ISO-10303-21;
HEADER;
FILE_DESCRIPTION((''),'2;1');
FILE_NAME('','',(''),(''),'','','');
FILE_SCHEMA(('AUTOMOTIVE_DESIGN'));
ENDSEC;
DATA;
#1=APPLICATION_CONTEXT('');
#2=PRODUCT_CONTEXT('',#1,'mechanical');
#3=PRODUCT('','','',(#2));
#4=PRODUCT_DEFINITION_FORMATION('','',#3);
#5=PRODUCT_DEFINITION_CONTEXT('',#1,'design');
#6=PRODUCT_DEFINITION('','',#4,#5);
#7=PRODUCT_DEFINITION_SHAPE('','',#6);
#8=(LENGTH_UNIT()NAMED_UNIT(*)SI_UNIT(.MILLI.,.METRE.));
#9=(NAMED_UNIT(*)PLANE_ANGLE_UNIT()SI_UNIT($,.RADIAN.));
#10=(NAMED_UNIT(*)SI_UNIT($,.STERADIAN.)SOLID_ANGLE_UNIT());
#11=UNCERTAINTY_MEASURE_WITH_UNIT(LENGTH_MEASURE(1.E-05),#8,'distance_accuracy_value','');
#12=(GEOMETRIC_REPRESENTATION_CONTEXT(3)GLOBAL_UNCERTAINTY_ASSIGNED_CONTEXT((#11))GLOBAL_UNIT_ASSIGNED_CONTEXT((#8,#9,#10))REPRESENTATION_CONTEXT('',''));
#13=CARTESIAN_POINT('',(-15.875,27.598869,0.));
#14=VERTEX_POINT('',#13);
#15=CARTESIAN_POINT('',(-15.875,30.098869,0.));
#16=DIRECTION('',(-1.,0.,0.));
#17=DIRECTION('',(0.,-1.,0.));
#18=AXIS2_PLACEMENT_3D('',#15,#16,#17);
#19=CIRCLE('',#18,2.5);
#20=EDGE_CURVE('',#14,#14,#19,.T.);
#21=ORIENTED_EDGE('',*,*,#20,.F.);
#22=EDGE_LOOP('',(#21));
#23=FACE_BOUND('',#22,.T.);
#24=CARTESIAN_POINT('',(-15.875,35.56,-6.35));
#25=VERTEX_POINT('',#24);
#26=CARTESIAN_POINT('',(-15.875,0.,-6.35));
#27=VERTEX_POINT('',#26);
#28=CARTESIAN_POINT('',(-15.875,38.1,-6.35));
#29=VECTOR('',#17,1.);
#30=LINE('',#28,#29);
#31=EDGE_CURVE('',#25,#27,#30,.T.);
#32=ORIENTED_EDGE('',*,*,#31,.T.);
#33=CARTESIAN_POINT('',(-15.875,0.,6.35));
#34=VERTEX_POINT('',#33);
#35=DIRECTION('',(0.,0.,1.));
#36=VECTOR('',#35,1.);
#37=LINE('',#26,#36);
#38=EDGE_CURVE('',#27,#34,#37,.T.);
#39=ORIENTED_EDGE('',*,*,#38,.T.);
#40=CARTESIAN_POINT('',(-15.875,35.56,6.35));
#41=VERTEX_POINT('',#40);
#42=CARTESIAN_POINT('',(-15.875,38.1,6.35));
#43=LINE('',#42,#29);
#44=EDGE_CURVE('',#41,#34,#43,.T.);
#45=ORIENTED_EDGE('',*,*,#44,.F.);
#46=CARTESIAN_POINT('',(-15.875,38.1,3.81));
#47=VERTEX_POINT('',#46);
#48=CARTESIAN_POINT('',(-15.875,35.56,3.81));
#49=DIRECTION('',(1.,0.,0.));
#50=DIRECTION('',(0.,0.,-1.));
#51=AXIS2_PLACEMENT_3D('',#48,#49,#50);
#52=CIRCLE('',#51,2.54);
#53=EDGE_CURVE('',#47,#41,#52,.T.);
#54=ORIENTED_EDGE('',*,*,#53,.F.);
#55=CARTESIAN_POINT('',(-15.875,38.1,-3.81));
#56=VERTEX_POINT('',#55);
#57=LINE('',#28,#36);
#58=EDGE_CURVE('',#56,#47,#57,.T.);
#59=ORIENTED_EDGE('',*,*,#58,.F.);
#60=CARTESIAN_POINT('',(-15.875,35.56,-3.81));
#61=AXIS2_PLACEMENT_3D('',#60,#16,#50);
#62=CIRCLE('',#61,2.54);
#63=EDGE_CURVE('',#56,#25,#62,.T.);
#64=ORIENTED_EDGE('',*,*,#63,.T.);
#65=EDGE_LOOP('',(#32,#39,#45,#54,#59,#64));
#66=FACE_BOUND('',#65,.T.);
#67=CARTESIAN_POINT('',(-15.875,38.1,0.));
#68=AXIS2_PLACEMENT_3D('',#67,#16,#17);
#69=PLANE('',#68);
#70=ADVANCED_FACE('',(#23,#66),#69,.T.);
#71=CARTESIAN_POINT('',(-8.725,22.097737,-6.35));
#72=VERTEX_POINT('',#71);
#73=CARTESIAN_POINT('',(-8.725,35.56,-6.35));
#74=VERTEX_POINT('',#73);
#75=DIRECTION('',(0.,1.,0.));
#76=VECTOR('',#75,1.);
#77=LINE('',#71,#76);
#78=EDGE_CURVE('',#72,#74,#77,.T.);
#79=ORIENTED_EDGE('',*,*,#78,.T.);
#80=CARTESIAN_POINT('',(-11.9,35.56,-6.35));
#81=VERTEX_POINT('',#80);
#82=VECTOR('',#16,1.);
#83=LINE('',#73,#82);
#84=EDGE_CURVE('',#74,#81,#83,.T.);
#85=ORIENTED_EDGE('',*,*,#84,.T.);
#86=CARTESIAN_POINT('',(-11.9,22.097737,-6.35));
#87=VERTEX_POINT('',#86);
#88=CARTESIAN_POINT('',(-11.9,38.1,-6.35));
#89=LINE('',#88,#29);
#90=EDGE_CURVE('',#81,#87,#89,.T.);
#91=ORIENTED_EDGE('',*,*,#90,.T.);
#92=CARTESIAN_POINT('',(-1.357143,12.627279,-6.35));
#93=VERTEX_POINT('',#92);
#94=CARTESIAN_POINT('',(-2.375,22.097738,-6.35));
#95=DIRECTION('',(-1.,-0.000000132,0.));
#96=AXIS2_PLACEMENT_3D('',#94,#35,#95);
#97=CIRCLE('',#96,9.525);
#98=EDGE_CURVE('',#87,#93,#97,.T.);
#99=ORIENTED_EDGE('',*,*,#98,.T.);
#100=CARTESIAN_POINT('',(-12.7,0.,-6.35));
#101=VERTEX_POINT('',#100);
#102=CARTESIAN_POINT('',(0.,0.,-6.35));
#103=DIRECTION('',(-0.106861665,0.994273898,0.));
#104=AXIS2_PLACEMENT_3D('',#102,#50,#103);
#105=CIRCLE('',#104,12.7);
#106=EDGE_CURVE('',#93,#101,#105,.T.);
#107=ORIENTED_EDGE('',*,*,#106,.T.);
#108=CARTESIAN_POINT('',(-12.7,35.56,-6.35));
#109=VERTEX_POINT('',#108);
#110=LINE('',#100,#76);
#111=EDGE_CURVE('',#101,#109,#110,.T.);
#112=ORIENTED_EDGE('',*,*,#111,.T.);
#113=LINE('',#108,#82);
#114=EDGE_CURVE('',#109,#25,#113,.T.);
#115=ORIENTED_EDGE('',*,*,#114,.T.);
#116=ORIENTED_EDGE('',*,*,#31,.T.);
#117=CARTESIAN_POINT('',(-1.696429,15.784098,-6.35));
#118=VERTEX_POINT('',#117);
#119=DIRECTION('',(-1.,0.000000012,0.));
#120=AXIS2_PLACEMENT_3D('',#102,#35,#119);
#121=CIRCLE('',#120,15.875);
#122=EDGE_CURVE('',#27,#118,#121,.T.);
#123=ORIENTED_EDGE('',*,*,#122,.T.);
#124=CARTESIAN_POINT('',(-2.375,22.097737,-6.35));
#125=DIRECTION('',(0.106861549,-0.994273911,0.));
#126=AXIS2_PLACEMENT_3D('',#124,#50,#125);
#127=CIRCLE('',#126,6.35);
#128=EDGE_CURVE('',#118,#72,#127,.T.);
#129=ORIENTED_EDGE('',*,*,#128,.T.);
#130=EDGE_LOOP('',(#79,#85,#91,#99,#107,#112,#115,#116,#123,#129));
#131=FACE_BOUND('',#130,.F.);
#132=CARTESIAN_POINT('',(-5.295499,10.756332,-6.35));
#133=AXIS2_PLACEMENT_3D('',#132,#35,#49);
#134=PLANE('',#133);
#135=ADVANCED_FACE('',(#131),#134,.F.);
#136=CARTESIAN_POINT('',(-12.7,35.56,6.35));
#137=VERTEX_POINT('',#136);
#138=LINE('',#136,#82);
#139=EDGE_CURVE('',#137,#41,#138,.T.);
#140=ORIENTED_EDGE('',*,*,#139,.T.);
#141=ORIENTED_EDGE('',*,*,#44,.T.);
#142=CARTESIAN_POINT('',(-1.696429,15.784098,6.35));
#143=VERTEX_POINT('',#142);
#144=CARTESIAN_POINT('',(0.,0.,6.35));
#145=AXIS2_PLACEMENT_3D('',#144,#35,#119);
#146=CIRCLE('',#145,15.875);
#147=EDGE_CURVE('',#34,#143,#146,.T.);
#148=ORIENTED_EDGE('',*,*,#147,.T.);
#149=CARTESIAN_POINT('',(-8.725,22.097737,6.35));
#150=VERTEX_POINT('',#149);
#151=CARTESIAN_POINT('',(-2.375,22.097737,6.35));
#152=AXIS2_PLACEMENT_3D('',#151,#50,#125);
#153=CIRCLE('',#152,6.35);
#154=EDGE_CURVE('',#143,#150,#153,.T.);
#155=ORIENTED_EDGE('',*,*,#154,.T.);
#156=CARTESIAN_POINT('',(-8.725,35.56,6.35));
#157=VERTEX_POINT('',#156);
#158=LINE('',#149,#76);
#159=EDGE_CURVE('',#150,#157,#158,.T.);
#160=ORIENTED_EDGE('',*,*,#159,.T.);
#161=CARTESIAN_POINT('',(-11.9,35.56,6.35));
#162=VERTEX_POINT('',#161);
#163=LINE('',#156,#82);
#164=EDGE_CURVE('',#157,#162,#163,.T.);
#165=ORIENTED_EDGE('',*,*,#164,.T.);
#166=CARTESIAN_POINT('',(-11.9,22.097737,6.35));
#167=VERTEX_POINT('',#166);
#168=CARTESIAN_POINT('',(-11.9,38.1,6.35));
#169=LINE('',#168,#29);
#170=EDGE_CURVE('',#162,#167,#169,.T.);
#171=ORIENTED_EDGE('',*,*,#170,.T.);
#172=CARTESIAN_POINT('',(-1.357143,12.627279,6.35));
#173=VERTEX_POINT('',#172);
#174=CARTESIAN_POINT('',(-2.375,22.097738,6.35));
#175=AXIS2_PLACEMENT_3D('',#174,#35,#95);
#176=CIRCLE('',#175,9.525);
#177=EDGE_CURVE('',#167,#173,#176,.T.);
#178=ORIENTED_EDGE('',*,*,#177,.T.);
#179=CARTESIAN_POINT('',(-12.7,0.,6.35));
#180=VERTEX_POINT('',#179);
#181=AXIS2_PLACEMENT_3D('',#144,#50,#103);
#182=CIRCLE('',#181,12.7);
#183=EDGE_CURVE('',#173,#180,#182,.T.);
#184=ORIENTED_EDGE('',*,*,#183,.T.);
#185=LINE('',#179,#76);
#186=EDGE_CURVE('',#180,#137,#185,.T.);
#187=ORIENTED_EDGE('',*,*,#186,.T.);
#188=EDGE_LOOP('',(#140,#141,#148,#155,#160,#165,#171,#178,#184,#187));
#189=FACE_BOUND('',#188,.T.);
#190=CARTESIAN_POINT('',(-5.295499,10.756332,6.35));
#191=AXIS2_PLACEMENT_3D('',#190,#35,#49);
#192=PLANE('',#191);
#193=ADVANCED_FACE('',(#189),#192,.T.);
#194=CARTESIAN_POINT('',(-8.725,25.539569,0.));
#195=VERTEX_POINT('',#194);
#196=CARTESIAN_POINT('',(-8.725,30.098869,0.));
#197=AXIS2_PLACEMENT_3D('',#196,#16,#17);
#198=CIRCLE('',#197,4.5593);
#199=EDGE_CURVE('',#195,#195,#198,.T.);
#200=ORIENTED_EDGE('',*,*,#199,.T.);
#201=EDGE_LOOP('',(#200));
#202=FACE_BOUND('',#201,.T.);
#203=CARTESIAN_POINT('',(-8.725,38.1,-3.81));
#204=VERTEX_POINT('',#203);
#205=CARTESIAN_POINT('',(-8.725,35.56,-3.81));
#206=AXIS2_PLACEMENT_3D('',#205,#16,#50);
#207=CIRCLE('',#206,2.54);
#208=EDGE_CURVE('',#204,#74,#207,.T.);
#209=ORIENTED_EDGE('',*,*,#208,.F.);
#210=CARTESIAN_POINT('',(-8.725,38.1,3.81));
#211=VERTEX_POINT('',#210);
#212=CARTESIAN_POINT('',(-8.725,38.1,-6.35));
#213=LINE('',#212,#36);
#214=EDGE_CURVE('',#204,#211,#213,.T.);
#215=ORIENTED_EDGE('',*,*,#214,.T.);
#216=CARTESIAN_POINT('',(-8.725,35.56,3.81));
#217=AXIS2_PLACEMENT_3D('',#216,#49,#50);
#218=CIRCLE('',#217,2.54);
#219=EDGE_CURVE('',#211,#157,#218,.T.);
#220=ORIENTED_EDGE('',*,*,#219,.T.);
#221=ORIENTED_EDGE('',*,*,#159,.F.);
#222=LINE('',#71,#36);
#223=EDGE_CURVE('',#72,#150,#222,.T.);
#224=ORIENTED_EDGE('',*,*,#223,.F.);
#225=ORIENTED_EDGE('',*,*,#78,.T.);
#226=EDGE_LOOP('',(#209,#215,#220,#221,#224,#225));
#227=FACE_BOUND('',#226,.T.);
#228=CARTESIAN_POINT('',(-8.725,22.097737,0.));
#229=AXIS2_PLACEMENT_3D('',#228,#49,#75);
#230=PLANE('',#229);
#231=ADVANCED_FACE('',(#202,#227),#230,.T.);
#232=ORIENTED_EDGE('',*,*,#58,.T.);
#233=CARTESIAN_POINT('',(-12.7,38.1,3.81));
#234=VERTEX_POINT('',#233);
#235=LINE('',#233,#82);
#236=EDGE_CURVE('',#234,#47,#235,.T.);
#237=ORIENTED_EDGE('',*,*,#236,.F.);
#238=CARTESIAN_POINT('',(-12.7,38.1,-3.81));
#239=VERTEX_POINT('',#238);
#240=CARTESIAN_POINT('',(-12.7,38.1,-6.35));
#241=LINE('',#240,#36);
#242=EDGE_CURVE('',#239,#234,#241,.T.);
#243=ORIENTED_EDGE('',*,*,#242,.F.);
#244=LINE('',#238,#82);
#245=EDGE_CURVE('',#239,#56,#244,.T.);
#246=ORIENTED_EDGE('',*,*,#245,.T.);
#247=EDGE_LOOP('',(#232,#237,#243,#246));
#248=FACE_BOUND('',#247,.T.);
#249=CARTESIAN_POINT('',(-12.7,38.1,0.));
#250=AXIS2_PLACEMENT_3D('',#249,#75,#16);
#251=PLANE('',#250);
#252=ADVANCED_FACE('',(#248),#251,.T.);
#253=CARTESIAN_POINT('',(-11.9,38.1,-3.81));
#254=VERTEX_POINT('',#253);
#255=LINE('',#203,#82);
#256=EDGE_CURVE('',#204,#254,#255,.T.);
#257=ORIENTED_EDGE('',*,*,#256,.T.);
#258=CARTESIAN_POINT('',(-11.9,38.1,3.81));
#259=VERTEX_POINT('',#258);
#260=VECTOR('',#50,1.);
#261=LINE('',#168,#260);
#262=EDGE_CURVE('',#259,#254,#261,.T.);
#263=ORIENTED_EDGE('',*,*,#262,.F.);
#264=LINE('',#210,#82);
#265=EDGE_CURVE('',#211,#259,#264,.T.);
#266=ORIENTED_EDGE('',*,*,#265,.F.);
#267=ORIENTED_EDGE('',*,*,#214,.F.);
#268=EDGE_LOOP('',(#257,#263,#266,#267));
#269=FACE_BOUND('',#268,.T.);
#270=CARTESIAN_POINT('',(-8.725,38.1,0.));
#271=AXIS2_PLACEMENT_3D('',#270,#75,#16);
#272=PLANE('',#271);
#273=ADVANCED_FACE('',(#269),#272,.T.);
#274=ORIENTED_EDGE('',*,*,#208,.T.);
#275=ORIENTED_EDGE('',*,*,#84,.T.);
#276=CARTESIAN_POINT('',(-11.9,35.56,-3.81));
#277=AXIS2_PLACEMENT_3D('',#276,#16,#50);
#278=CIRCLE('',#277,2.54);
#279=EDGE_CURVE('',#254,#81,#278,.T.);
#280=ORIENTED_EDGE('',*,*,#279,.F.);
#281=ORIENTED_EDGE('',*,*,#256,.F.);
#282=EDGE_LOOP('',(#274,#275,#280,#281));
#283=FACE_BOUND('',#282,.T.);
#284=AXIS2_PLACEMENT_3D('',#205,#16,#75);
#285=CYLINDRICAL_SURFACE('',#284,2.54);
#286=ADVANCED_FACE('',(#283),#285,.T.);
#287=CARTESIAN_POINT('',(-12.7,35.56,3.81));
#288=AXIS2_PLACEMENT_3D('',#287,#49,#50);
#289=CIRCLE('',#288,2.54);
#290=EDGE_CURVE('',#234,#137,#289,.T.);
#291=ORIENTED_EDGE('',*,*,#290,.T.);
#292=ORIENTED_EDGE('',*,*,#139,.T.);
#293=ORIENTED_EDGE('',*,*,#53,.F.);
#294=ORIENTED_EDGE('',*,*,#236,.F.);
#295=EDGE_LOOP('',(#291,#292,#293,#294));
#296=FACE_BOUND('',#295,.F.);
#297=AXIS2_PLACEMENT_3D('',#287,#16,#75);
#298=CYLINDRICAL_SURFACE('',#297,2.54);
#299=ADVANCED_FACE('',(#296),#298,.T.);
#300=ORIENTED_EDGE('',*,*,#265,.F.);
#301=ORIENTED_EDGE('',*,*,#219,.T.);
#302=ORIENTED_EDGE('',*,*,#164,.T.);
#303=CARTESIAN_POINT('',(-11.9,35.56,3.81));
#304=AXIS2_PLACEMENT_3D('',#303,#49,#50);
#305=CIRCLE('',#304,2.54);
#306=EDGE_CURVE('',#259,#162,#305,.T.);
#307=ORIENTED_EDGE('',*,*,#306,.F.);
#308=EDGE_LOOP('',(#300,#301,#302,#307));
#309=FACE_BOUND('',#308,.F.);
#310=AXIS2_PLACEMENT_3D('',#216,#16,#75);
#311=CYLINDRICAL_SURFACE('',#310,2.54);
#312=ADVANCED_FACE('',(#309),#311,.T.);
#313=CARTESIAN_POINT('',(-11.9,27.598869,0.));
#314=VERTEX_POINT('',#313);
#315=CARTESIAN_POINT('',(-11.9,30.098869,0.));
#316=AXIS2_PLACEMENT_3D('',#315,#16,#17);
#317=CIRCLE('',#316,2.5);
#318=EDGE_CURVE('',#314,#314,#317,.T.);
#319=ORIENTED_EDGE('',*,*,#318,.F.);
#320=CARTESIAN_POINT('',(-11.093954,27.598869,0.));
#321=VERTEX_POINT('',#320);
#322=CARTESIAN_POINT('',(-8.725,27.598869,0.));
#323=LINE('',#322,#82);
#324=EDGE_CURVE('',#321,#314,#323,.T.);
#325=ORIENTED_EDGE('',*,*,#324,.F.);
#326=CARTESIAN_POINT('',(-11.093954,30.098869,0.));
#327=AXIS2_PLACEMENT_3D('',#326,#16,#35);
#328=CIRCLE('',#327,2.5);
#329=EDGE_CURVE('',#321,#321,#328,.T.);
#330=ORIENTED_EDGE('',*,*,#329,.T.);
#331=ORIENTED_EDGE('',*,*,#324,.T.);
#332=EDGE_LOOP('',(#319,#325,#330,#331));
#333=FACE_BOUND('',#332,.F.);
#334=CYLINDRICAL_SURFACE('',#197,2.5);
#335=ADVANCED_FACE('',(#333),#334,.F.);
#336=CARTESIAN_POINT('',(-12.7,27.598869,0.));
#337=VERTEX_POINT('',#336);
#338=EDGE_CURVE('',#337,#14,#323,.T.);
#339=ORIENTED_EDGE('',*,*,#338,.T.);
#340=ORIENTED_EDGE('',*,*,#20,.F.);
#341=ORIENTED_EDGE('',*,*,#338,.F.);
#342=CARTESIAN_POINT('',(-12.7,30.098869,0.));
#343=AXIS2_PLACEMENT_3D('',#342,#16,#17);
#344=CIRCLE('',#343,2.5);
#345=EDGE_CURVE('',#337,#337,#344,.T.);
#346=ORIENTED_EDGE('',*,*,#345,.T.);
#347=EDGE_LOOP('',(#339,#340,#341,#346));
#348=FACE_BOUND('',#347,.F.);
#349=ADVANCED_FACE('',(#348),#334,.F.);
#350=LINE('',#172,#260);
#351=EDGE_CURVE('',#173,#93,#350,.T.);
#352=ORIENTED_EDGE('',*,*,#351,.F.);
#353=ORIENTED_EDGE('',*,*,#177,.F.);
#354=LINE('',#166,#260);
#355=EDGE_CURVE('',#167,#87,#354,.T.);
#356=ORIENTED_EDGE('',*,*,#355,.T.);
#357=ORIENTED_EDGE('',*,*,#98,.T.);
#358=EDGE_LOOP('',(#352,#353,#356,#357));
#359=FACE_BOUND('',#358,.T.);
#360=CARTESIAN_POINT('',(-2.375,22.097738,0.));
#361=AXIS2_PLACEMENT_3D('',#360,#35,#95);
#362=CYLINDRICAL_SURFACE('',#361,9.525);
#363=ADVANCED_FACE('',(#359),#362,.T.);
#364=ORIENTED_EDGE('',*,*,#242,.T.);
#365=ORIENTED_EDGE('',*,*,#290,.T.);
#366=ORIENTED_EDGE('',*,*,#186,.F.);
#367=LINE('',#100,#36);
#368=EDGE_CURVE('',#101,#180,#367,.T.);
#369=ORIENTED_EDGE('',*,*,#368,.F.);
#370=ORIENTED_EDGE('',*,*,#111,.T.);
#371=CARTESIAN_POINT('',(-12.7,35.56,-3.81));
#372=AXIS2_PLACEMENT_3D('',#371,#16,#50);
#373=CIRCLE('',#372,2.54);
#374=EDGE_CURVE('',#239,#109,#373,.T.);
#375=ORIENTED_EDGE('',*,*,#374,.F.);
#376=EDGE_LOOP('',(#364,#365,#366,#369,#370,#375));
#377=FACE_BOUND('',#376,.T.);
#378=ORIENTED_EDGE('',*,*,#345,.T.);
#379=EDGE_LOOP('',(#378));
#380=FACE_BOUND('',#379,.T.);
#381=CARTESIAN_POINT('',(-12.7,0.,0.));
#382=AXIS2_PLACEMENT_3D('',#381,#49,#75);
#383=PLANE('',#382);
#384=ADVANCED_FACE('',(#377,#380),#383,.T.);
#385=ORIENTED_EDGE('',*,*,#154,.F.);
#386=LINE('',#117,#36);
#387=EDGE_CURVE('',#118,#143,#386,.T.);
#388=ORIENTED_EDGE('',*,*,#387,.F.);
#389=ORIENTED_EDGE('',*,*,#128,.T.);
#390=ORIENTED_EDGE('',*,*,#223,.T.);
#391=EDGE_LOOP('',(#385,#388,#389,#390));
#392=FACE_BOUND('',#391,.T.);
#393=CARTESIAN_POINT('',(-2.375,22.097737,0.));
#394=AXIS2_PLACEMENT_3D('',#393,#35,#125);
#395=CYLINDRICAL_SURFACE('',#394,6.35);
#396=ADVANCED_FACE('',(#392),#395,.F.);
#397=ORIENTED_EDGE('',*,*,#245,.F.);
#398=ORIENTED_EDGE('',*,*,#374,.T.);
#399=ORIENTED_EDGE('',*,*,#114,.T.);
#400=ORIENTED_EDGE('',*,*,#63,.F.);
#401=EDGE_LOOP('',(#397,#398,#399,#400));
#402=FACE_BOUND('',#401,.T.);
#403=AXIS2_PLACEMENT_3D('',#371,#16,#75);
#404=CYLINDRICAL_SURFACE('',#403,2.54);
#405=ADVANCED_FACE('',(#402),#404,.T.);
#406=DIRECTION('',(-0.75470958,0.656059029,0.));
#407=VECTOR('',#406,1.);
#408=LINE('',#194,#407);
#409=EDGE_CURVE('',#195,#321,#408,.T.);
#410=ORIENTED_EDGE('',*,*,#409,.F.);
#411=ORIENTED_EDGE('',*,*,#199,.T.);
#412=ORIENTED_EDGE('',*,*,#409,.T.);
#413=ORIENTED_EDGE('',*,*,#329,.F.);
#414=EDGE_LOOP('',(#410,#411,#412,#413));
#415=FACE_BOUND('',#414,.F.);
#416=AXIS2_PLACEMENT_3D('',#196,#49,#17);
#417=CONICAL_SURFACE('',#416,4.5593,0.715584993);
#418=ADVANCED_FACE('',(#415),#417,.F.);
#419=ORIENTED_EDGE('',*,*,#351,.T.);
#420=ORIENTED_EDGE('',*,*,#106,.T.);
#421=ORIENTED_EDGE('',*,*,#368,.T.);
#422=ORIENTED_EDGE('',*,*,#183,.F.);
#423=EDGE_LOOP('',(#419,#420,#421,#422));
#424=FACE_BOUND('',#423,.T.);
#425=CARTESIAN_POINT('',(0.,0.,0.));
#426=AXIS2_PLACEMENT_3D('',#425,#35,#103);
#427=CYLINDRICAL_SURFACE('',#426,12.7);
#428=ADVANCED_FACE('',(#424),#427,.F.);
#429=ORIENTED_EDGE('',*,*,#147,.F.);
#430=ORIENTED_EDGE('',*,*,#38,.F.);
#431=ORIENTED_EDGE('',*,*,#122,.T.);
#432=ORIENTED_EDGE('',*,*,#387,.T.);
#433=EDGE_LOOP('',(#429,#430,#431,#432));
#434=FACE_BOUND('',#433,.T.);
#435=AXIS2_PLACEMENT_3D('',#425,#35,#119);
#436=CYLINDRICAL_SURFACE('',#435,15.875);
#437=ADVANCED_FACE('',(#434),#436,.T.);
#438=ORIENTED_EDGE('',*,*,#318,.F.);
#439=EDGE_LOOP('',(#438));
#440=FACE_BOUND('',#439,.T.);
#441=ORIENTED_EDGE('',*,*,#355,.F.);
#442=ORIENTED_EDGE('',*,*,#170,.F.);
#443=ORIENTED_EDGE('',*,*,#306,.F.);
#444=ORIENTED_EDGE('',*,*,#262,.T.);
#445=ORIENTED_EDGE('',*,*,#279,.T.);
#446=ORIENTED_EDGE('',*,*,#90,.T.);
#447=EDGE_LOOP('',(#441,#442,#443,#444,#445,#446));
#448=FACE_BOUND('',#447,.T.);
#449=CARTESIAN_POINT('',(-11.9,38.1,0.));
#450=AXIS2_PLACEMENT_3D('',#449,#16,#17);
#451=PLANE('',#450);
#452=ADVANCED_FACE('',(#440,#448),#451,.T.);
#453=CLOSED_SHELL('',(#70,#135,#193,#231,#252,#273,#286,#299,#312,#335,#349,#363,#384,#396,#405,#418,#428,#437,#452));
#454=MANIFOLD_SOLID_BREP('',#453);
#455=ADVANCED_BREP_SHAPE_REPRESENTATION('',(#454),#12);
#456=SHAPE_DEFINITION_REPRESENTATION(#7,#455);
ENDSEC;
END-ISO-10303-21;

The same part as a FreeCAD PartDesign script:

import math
import FreeCAD as App
import Part
import Sketcher
Q = App.Units.Quantity


def edges_at(feature, points):
    """Names of the edges that pass closest to the given points."""
    edges = feature.Shape.Edges
    near = lambda p: min(range(len(edges)), key=lambda i: edges[i].distToShape(Part.Vertex(*p))[0])
    return sorted({f"Edge{near(p) + 1}" for p in points})

doc = App.newDocument("Part")
body = doc.addObject("PartDesign::Body", "Body")

sketch1 = body.newObject("Sketcher::SketchObject", "Sketch")
sketch1.AttachmentSupport = (doc.getObject("XY_Plane"), [""])
sketch1.MapMode = "FlatFace"
sketch1.addGeometry(Part.ArcOfCircle(Part.Circle(App.Vector(0, 0, 0), App.Vector(0, 0, 1), 12.7), math.radians(-180), math.radians(96)), False)
sketch1.addGeometry(Part.LineSegment(App.Vector(-12.7, 0, 0), App.Vector(-12.7, 38.1, 0)), False)
sketch1.addGeometry(Part.LineSegment(App.Vector(-12.7, 38.1, 0), App.Vector(-15.9, 38.1, 0)), False)
sketch1.addGeometry(Part.LineSegment(App.Vector(-15.9, 38.1, 0), App.Vector(-15.9, 0, 0)), False)
sketch1.addGeometry(Part.ArcOfCircle(Part.Circle(App.Vector(0, 0, 0), App.Vector(0, 0, 1), 15.9), math.radians(180), math.radians(456)), False)
sketch1.addGeometry(Part.ArcOfCircle(Part.Circle(App.Vector(-2.4, 22.1, 0), App.Vector(0, 0, 1), 6.4), math.radians(-180), math.radians(-84)), False)
sketch1.addGeometry(Part.LineSegment(App.Vector(-8.7, 22.1, 0), App.Vector(-8.7, 38.1, 0)), False)
sketch1.addGeometry(Part.LineSegment(App.Vector(-8.7, 38.1, 0), App.Vector(-11.9, 38.1, 0)), False)
sketch1.addGeometry(Part.LineSegment(App.Vector(-11.9, 38.1, 0), App.Vector(-11.9, 22.1, 0)), False)
sketch1.addGeometry(Part.ArcOfCircle(Part.Circle(App.Vector(-2.4, 22.1, 0), App.Vector(0, 0, 1), 9.5), math.radians(-180), math.radians(-84)), False)
sketch1.addConstraint(Sketcher.Constraint("Tangent", 0, 1, 1, 1))
sketch1.addConstraint(Sketcher.Constraint("Coincident", 1, 2, 2, 1))
sketch1.addConstraint(Sketcher.Constraint("Coincident", 2, 2, 3, 1))
sketch1.addConstraint(Sketcher.Constraint("Tangent", 3, 2, 4, 1))
sketch1.addConstraint(Sketcher.Constraint("Tangent", 4, 2, 5, 2))
sketch1.addConstraint(Sketcher.Constraint("Tangent", 5, 1, 6, 1))
sketch1.addConstraint(Sketcher.Constraint("Coincident", 6, 2, 7, 1))
sketch1.addConstraint(Sketcher.Constraint("Coincident", 7, 2, 8, 1))
sketch1.addConstraint(Sketcher.Constraint("Tangent", 8, 2, 9, 1))
sketch1.addConstraint(Sketcher.Constraint("Tangent", 9, 2, 0, 2))
sketch1.addConstraint(Sketcher.Constraint("Vertical", 1))
sketch1.addConstraint(Sketcher.Constraint("Horizontal", 2))
sketch1.addConstraint(Sketcher.Constraint("Vertical", 3))
sketch1.addConstraint(Sketcher.Constraint("Vertical", 6))
sketch1.addConstraint(Sketcher.Constraint("Horizontal", 7))
sketch1.addConstraint(Sketcher.Constraint("Vertical", 8))
sketch1.addConstraint(Sketcher.Constraint("Coincident", 0, 3, -1, 1))
sketch1.addConstraint(Sketcher.Constraint("Coincident", 4, 3, -1, 1))
sketch1.addConstraint(Sketcher.Constraint("Coincident", 9, 3, 5, 3))
sketch1.addConstraint(Sketcher.Constraint("Horizontal", 2, 2, 6, 2))
sketch1.addConstraint(Sketcher.Constraint("Radius", 0, Q("0.5 in")))
sketch1.addConstraint(Sketcher.Constraint("Radius", 5, Q("0.25 in")))
sketch1.addConstraint(Sketcher.Constraint("DistanceY", 1, 1, 1, 2, Q("1.5 in")))
sketch1.addConstraint(Sketcher.Constraint("Radius", 4, Q("0.625 in")))
sketch1.addConstraint(Sketcher.Constraint("DistanceX", 5, 3, -1, 1, 2.375))
pad1 = body.newObject("PartDesign::Pad", "Pad")
pad1.Profile = sketch1
pad1.Length = Q("0.5 in")
pad1.Midplane = True

sketch2 = body.newObject("Sketcher::SketchObject", "Sketch001")
sketch2.AttachmentSupport = (doc.getObject("YZ_Plane"), [""])
sketch2.MapMode = "FlatFace"
sketch2.AttachmentOffset = App.Placement(App.Vector(0, 0, -8.725), App.Rotation())
sketch2.addGeometry(Part.Circle(App.Vector(30.1, 0, 0), App.Vector(0, 0, 1), 2.5), False)
sketch2.addConstraint(Sketcher.Constraint("PointOnObject", 0, 3, -1))
sketch2.addConstraint(Sketcher.Constraint("Diameter", 0, 5.0))
sketch2.addConstraint(Sketcher.Constraint("DistanceX", -1, 1, 0, 3, 30.098869))
doc.recompute()
hole = body.newObject("PartDesign::Hole", "Hole")
hole.Profile = sketch2
hole.ThreadType = "None"
hole.Diameter = 5
hole.DepthType = "ThroughAll"
hole.HoleCutType = "Countersink"
hole.HoleCutDiameter = Q("0.359 in")
hole.HoleCutCountersinkAngle = 82
doc.recompute()

fillet = body.newObject("PartDesign::Fillet", "Fillet")
fillet.Base = (hole, edges_at(hole, [
    (-14.287, 38.1, 6.35),
    (-10.312, 38.1, -6.35),
    (-14.287, 38.1, -6.35),
    (-10.312, 38.1, 6.35),
]))
fillet.Radius = Q("0.1 in")

doc.recompute()
